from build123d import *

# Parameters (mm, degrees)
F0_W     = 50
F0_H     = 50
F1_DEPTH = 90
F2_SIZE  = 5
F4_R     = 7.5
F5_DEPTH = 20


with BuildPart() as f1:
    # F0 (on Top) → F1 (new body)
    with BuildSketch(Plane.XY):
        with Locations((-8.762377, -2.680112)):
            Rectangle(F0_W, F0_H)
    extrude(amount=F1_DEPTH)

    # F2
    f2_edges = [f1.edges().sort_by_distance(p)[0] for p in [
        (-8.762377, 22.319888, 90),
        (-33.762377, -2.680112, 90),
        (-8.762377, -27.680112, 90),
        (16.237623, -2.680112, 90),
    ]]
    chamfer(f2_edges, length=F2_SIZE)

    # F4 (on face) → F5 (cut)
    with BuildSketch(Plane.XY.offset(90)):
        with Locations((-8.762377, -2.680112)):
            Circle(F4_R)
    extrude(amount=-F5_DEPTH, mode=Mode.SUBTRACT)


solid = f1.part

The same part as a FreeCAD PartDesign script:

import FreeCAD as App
import Part
import Sketcher
from FreeCAD import Vector


def edges_at(feature, points):
    """Names of the edges that pass closest to the given points."""
    edges = feature.Shape.Edges
    near = lambda p: min(range(len(edges)), key=lambda i: edges[i].distToShape(Part.Vertex(*p))[0])
    return sorted({f"Edge{near(p) + 1}" for p in points})


def add_polygon(sketch, points):
    """Adds a closed chain of lines whose ends are joined by coincident constraints."""
    first, n = sketch.GeometryCount, len(points)
    for a, b in zip(points, points[1:] + points[:1]):
        sketch.addGeometry(Part.LineSegment(App.Vector(*a, 0), App.Vector(*b, 0)), False)
    for i in range(n):
        sketch.addConstraint(Sketcher.Constraint("Coincident", first + i, 2, first + (i + 1) % n, 1))

doc = App.newDocument("Part")
body = doc.addObject("PartDesign::Body", "Body")

# Sketch on XY plane
sketch1 = body.newObject("Sketcher::SketchObject", "Sketch")
sketch1.AttachmentSupport = (doc.getObject("XY_Plane"), [""])
sketch1.MapMode = "FlatFace"
add_polygon(sketch1, [(-34, 22), (-34, -28), (16, -28), (16, 22)])  # lines 0-3
sketch1.addConstraint([
    Sketcher.Constraint("Vertical", 0),
    Sketcher.Constraint("Horizontal", 1),
    Sketcher.Constraint("Vertical", 2),
    Sketcher.Constraint("Horizontal", 3),
    Sketcher.Constraint("Equal", 3, 0),
    Sketcher.Constraint("DistanceX", 1, 1, 1, 2, 50.0),
    Sketcher.Constraint("DistanceX", 0, 2, -1, 1, 33.762377),
    Sketcher.Constraint("DistanceY", 0, 2, -1, 1, 27.680112),
])
pad1 = body.newObject("PartDesign::Pad", "Pad")
pad1.Profile = sketch1
pad1.Length = 90
doc.recompute()

chamfer = body.newObject("PartDesign::Chamfer", "Chamfer")
chamfer.Base = (pad1, edges_at(pad1, [
    (-8.762, 22.32, 90),
    (-33.762, -2.68, 90),
    (-8.762, -27.68, 90),
    (16.238, -2.68, 90),
]))
chamfer.Size = 5

# Sketch on XY plane
sketch2 = body.newObject("Sketcher::SketchObject", "Sketch001")
sketch2.AttachmentSupport = (doc.getObject("XY_Plane"), [""])
sketch2.MapMode = "FlatFace"
sketch2.AttachmentOffset = App.Placement(Vector(0, 0, 90), App.Rotation())
sketch2.addGeometry(Part.Circle(Vector(-9, -3, 0), Vector(0, 0, 1), 8), False)
sketch2.addConstraint([
    Sketcher.Constraint("Diameter", 0, 15.0),
    Sketcher.Constraint("DistanceY", 0, 3, -1, 1, 2.680112),
    Sketcher.Constraint("DistanceX", 0, 3, -1, 1, 8.762377),
])
pocket1 = body.newObject("PartDesign::Pocket", "Pocket")
pocket1.Profile = sketch2
pocket1.Length = 20

doc.recompute()
